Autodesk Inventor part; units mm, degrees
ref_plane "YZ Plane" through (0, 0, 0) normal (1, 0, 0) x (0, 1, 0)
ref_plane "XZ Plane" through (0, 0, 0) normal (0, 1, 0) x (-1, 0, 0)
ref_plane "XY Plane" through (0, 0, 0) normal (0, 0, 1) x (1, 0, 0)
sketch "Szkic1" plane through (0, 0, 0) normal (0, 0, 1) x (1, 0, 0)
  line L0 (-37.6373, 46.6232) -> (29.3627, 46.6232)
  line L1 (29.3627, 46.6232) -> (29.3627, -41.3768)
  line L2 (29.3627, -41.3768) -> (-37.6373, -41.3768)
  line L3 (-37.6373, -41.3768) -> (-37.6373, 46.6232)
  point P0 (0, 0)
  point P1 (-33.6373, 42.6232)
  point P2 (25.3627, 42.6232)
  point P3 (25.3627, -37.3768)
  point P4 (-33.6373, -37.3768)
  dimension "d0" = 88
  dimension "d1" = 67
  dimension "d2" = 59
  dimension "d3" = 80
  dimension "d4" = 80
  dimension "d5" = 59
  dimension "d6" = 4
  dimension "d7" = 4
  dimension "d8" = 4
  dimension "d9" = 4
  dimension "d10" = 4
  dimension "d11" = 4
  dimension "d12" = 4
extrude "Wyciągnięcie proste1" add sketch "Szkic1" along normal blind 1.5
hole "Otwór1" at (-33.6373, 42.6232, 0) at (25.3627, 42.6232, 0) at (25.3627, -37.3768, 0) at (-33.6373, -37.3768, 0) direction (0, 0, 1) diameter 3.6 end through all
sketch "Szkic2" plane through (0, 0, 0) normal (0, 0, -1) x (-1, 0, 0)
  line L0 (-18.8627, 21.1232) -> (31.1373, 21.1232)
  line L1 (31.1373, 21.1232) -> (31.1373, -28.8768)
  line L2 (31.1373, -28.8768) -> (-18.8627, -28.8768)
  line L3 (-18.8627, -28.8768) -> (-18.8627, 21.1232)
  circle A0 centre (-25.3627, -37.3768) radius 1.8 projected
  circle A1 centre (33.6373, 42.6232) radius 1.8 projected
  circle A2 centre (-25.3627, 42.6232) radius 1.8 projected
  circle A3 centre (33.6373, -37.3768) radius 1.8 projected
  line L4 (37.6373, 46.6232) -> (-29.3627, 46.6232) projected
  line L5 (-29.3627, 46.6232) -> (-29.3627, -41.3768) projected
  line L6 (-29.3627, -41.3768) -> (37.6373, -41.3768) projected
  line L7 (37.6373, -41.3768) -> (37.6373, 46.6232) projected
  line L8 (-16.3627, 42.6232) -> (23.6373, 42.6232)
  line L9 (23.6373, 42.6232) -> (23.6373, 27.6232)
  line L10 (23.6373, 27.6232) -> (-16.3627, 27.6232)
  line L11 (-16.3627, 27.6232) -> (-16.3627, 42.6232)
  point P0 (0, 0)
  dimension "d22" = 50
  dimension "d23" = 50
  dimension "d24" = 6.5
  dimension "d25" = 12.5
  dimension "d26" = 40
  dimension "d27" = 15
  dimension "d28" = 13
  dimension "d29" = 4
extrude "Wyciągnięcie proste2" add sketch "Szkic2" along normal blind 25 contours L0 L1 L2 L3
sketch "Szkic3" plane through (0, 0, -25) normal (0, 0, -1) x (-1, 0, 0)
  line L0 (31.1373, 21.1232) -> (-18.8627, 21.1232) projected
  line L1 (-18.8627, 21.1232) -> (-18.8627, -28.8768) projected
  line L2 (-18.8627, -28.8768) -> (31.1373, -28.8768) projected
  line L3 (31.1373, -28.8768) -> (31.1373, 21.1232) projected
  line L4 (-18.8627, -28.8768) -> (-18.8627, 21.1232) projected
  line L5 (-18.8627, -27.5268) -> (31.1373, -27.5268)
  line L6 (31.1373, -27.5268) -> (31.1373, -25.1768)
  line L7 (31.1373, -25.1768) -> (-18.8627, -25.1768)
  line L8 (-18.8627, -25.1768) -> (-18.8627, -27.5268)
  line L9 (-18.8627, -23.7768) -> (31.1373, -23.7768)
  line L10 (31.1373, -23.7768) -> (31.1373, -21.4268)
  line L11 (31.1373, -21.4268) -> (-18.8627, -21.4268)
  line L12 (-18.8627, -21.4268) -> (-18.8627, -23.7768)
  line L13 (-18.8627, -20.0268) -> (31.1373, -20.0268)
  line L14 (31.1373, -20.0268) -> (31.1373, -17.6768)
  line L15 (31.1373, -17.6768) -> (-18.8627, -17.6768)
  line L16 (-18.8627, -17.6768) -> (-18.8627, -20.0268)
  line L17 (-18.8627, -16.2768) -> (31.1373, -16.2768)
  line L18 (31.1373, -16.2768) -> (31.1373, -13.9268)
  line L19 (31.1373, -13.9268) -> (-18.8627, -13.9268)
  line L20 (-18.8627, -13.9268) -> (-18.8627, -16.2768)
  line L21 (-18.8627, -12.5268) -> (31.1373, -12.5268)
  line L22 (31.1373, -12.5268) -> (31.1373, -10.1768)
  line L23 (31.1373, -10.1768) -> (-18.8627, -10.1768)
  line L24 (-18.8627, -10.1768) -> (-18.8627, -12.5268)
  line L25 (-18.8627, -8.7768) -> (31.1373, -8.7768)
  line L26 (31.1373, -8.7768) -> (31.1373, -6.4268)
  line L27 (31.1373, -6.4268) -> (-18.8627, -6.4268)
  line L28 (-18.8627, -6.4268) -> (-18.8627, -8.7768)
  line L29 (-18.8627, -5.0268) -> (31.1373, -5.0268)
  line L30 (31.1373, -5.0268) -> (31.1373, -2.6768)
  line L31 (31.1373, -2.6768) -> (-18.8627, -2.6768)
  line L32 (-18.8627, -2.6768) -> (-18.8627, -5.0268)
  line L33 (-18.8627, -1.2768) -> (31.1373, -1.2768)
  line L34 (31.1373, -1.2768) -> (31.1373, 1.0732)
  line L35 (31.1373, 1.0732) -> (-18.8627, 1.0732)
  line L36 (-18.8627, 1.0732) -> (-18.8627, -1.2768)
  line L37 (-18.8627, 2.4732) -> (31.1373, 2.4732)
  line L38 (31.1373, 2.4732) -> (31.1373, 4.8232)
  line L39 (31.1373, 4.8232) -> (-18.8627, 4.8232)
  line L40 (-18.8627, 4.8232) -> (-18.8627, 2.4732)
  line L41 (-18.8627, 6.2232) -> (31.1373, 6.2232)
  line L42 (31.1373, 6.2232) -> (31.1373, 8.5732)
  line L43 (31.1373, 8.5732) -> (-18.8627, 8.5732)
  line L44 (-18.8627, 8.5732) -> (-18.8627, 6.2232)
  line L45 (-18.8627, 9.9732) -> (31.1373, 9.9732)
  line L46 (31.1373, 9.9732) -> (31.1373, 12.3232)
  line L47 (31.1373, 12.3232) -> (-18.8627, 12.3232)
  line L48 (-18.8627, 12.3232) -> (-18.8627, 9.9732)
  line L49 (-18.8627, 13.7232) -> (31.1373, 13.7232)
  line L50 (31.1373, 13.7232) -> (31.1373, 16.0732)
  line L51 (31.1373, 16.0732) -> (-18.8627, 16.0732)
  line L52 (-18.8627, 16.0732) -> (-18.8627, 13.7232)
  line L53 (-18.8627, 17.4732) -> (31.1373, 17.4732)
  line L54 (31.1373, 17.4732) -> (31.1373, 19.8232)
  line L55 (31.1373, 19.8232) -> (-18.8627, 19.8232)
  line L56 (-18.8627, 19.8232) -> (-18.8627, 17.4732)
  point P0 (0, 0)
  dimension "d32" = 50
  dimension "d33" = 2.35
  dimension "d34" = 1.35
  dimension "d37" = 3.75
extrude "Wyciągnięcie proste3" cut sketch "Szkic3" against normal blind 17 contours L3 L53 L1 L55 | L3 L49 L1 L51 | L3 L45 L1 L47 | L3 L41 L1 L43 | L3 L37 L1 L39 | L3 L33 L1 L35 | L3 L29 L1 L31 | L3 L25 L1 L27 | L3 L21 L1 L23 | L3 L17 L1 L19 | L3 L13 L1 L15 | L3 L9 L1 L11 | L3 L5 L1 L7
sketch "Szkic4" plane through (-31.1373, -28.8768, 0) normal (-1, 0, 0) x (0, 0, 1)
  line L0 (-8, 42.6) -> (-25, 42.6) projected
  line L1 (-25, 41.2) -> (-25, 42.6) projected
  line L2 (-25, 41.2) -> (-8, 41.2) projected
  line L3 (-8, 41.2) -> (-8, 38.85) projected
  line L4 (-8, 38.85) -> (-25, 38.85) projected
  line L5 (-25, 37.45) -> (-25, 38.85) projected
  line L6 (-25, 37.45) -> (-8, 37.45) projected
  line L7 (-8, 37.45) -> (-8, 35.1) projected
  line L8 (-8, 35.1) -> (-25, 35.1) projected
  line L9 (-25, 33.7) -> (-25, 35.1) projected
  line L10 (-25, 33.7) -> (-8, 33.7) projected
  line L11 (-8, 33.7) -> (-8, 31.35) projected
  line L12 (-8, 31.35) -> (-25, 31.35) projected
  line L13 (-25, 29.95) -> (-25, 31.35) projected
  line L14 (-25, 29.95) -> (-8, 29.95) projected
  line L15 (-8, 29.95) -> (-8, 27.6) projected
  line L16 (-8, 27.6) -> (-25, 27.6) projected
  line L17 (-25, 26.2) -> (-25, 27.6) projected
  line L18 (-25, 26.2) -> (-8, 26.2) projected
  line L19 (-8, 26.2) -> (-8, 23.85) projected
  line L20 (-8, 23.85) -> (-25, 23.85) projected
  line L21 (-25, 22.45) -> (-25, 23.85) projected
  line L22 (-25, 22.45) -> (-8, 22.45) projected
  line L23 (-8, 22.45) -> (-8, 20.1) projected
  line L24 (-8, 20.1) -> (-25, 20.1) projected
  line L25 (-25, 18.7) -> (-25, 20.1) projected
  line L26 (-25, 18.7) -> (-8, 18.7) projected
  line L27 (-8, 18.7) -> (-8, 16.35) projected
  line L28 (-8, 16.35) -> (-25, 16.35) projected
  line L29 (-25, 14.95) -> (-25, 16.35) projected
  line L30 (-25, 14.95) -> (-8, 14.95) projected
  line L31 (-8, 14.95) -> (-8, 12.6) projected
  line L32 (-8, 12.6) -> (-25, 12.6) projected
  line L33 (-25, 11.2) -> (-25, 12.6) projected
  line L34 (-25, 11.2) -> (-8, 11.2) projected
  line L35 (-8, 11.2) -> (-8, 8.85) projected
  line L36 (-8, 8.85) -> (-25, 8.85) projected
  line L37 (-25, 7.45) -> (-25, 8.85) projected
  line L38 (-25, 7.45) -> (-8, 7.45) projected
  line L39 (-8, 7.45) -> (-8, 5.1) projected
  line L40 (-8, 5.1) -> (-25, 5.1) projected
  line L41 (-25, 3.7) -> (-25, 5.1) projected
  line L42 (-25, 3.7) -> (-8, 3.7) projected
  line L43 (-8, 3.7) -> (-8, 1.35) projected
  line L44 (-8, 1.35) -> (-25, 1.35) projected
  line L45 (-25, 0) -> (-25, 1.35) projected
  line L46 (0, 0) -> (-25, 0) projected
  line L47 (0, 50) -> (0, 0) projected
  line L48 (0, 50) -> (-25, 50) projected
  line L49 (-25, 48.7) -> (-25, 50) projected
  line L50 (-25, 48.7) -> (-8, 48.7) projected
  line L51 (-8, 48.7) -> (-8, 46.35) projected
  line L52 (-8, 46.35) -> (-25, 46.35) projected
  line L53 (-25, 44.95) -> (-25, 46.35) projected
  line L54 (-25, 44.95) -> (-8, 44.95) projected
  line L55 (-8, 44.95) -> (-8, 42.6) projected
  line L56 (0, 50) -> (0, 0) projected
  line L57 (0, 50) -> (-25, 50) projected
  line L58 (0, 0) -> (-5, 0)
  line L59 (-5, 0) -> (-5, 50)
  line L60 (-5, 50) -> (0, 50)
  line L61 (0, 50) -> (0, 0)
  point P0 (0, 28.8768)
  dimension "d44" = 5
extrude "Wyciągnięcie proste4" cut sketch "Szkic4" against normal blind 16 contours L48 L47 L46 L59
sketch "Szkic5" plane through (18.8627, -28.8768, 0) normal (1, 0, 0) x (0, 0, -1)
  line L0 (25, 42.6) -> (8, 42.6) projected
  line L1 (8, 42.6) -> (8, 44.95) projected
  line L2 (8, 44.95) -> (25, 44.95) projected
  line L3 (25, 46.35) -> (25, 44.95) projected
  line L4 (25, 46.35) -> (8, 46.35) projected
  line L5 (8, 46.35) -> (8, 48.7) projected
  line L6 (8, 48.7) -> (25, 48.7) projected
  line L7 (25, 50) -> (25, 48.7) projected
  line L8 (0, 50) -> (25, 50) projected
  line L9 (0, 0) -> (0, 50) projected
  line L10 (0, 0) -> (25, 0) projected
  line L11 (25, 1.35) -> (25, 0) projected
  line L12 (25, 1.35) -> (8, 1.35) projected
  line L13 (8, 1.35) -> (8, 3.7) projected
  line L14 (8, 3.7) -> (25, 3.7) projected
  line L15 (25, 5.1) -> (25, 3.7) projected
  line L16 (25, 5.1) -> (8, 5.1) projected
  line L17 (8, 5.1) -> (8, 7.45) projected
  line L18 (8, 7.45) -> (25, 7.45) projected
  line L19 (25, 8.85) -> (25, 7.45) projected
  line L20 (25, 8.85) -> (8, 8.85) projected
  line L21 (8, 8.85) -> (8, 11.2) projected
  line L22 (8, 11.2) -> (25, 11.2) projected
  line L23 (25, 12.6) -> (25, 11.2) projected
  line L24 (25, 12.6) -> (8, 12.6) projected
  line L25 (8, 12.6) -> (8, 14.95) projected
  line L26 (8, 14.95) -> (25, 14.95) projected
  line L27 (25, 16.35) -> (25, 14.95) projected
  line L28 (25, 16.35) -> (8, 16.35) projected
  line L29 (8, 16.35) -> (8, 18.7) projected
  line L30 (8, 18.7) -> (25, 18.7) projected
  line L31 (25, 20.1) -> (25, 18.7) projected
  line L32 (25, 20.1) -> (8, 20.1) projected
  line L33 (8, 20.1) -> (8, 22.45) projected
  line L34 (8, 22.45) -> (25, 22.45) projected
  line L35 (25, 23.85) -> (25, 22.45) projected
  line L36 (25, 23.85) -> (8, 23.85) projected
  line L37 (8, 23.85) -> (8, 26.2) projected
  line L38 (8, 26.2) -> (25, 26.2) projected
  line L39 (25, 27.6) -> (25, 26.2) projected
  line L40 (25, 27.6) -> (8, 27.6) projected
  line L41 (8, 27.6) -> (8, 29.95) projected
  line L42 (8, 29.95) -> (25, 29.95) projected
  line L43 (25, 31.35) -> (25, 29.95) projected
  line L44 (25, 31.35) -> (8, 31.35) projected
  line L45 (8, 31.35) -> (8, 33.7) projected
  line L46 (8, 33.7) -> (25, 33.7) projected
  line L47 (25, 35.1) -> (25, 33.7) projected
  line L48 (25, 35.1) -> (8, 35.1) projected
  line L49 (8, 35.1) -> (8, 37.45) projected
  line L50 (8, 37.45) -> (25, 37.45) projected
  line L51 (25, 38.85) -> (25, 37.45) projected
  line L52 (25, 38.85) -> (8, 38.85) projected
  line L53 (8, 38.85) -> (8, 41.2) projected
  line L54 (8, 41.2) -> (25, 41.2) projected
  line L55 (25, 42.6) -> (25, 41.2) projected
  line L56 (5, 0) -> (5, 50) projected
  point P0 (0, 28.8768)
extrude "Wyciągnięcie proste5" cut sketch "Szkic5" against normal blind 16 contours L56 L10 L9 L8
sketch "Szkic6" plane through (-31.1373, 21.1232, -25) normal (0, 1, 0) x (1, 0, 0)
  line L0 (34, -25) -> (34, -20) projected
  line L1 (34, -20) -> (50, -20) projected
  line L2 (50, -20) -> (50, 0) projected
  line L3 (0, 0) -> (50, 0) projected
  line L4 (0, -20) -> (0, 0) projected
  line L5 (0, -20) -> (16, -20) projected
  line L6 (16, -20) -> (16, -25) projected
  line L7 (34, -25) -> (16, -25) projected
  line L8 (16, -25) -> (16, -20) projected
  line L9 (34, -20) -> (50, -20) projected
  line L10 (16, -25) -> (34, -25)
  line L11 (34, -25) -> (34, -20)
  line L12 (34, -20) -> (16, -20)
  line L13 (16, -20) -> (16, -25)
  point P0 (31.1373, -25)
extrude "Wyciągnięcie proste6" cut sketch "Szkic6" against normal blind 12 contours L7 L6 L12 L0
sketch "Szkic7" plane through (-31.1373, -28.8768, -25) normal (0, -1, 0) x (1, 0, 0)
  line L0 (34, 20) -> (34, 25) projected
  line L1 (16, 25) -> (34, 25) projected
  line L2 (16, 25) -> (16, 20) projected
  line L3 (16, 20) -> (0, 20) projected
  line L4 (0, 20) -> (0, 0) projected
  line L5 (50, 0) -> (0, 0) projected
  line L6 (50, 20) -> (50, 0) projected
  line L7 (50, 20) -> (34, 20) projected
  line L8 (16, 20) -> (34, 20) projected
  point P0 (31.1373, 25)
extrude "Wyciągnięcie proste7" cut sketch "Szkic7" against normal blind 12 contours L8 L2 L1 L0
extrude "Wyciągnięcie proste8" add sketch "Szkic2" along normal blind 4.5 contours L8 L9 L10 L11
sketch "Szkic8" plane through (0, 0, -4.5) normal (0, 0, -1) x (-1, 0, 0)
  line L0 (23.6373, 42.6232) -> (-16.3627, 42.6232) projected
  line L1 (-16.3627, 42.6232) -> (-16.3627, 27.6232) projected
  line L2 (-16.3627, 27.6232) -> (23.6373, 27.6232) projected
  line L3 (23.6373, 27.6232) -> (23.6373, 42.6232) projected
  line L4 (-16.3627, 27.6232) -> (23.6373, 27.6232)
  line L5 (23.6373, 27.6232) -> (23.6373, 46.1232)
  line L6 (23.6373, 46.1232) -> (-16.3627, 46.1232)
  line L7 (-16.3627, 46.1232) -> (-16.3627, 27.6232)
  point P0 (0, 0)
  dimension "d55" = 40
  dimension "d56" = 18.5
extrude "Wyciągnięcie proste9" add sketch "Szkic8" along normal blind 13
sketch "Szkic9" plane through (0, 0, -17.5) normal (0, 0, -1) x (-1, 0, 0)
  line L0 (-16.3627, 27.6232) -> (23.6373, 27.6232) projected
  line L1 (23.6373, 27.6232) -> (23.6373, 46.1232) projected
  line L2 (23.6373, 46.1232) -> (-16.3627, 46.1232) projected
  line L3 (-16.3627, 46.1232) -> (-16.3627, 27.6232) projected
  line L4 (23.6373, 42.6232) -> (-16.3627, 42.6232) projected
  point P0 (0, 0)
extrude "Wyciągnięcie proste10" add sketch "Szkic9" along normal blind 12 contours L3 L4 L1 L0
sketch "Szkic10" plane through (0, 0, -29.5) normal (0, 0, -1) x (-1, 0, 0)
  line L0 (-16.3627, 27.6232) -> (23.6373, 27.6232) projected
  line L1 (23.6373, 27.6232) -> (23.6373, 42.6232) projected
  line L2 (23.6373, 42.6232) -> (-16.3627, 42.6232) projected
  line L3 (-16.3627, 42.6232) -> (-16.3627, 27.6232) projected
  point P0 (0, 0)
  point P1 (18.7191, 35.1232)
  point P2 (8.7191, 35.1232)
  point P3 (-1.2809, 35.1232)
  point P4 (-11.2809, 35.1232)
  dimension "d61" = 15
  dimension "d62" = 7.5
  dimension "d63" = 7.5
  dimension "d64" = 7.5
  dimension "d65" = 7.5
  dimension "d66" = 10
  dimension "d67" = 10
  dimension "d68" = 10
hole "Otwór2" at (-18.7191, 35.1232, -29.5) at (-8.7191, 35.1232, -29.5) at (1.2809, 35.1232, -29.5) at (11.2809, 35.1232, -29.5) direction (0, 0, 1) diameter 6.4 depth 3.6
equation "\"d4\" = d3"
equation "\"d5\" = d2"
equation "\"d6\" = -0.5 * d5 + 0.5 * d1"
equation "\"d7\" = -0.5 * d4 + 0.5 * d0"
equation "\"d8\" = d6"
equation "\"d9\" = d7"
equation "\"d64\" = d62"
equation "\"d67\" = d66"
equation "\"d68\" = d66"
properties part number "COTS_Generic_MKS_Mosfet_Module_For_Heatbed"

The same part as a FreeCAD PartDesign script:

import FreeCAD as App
import Part
import Sketcher

doc = App.newDocument("Part")
body = doc.addObject("PartDesign::Body", "Body")

sketch1 = body.newObject("Sketcher::SketchObject", "Sketch")
sketch1.AttachmentSupport = (doc.getObject("XY_Plane"), [""])
sketch1.MapMode = "FlatFace"
sketch1.addGeometry(Part.LineSegment(App.Vector(29, 47, 0), App.Vector(-38, 47, 0)), False)
sketch1.addGeometry(Part.LineSegment(App.Vector(-38, 47, 0), App.Vector(-38, -41, 0)), False)
sketch1.addGeometry(Part.LineSegment(App.Vector(-38, -41, 0), App.Vector(29, -41, 0)), False)
sketch1.addGeometry(Part.LineSegment(App.Vector(29, -41, 0), App.Vector(29, 47, 0)), False)
sketch1.addConstraint(Sketcher.Constraint("Coincident", 0, 2, 1, 1))
sketch1.addConstraint(Sketcher.Constraint("Coincident", 1, 2, 2, 1))
sketch1.addConstraint(Sketcher.Constraint("Coincident", 2, 2, 3, 1))
sketch1.addConstraint(Sketcher.Constraint("Coincident", 3, 2, 0, 1))
sketch1.addConstraint(Sketcher.Constraint("Horizontal", 0))
sketch1.addConstraint(Sketcher.Constraint("Vertical", 1))
sketch1.addConstraint(Sketcher.Constraint("Horizontal", 2))
sketch1.addConstraint(Sketcher.Constraint("Vertical", 3))
sketch1.addConstraint(Sketcher.Constraint("DistanceX", 0, 2, 0, 1, 67.0))
sketch1.addConstraint(Sketcher.Constraint("DistanceY", 1, 2, 1, 1, 88.0))
sketch1.addConstraint(Sketcher.Constraint("DistanceX", 0, 2, -1, 1, 37.6373))
sketch1.addConstraint(Sketcher.Constraint("DistanceY", -1, 1, 0, 2, 46.6232))
pad1 = body.newObject("PartDesign::Pad", "Pad")
pad1.Profile = sketch1
pad1.Length = 1.5

sketch2 = body.newObject("Sketcher::SketchObject", "Sketch001")
sketch2.AttachmentSupport = (doc.getObject("XY_Plane"), [""])
sketch2.MapMode = "FlatFace"
sketch2.addGeometry(Part.Circle(App.Vector(-33.6, 42.6, 0), App.Vector(0, 0, 1), 1.8), False)
sketch2.addGeometry(Part.Circle(App.Vector(25.4, 42.6, 0), App.Vector(0, 0, 1), 1.8), False)
sketch2.addGeometry(Part.Circle(App.Vector(25.4, -37.4, 0), App.Vector(0, 0, 1), 1.8), False)
sketch2.addGeometry(Part.Circle(App.Vector(-33.6, -37.4, 0), App.Vector(0, 0, 1), 1.8), False)
sketch2.addConstraint(Sketcher.Constraint("Equal", 0, 1))
sketch2.addConstraint(Sketcher.Constraint("Equal", 1, 2))
sketch2.addConstraint(Sketcher.Constraint("Equal", 2, 3))
sketch2.addConstraint(Sketcher.Constraint("Horizontal", 0, 3, 1, 3))
sketch2.addConstraint(Sketcher.Constraint("Horizontal", 2, 3, 3, 3))
sketch2.addConstraint(Sketcher.Constraint("Vertical", 1, 3, 2, 3))
sketch2.addConstraint(Sketcher.Constraint("Vertical", 0, 3, 3, 3))
sketch2.addConstraint(Sketcher.Constraint("Diameter", 0, 3.6))
sketch2.addConstraint(Sketcher.Constraint("DistanceX", 0, 3, 1, 3, 59.0))
sketch2.addConstraint(Sketcher.Constraint("DistanceY", 2, 3, 1, 3, 80.0))
sketch2.addConstraint(Sketcher.Constraint("DistanceX", 0, 3, -1, 1, 33.6373))
sketch2.addConstraint(Sketcher.Constraint("DistanceY", -1, 1, 0, 3, 42.6232))
doc.recompute()
hole = body.newObject("PartDesign::Hole", "Hole")
hole.Profile = sketch2
hole.ThreadType = "None"
hole.Diameter = 3.6
hole.DepthType = "ThroughAll"
hole.Reversed = True

sketch3 = body.newObject("Sketcher::SketchObject", "Sketch002")
sketch3.AttachmentSupport = (doc.getObject("XY_Plane"), [""])
sketch3.MapMode = "FlatFace"
sketch3.addGeometry(Part.LineSegment(App.Vector(-31, 21, 0), App.Vector(19, 21, 0)), False)
sketch3.addGeometry(Part.LineSegment(App.Vector(19, 21, 0), App.Vector(19, -29, 0)), False)
sketch3.addGeometry(Part.LineSegment(App.Vector(19, -29, 0), App.Vector(-31, -29, 0)), False)
sketch3.addGeometry(Part.LineSegment(App.Vector(-31, -29, 0), App.Vector(-31, 21, 0)), False)
sketch3.addConstraint(Sketcher.Constraint("Coincident", 0, 2, 1, 1))
sketch3.addConstraint(Sketcher.Constraint("Coincident", 1, 2, 2, 1))
sketch3.addConstraint(Sketcher.Constraint("Coincident", 2, 2, 3, 1))
sketch3.addConstraint(Sketcher.Constraint("Coincident", 3, 2, 0, 1))
sketch3.addConstraint(Sketcher.Constraint("Horizontal", 0))
sketch3.addConstraint(Sketcher.Constraint("Vertical", 1))
sketch3.addConstraint(Sketcher.Constraint("Horizontal", 2))
sketch3.addConstraint(Sketcher.Constraint("Vertical", 3))
sketch3.addConstraint(Sketcher.Constraint("Equal", 2, 1))
sketch3.addConstraint(Sketcher.Constraint("DistanceX", 0, 1, 0, 2, 50.0))
sketch3.addConstraint(Sketcher.Constraint("DistanceX", -1, 1, 0, 2, 18.8627))
sketch3.addConstraint(Sketcher.Constraint("DistanceY", -1, 1, 0, 2, 21.1232))
pad2 = body.newObject("PartDesign::Pad", "Pad001")
pad2.Profile = sketch3
pad2.Length = 25
pad2.Reversed = True

sketch4 = body.newObject("Sketcher::SketchObject", "Sketch003")
sketch4.AttachmentSupport = (doc.getObject("XY_Plane"), [""])
sketch4.MapMode = "FlatFace"
sketch4.AttachmentOffset = App.Placement(App.Vector(0, 0, -25), App.Rotation())
sketch4.addGeometry(Part.LineSegment(App.Vector(-31.1, 17.5, 0), App.Vector(-31.1, 19.8, 0)), False)
sketch4.addGeometry(Part.LineSegment(App.Vector(-31.1, 19.8, 0), App.Vector(18.9, 19.8, 0)), False)
sketch4.addGeometry(Part.LineSegment(App.Vector(18.9, 19.8, 0), App.Vector(18.9, 17.5, 0)), False)
sketch4.addGeometry(Part.LineSegment(App.Vector(18.9, 17.5, 0), App.Vector(-31.1, 17.5, 0)), False)
sketch4.addGeometry(Part.LineSegment(App.Vector(-31.1, 13.7, 0), App.Vector(-31.1, 16.1, 0)), False)
sketch4.addGeometry(Part.LineSegment(App.Vector(-31.1, 16.1, 0), App.Vector(18.9, 16.1, 0)), False)
sketch4.addGeometry(Part.LineSegment(App.Vector(18.9, 16.1, 0), App.Vector(18.9, 13.7, 0)), False)
sketch4.addGeometry(Part.LineSegment(App.Vector(18.9, 13.7, 0), App.Vector(-31.1, 13.7, 0)), False)
sketch4.addGeometry(Part.LineSegment(App.Vector(-31.1, 10, 0), App.Vector(-31.1, 12.3, 0)), False)
sketch4.addGeometry(Part.LineSegment(App.Vector(-31.1, 12.3, 0), App.Vector(18.9, 12.3, 0)), False)
sketch4.addGeometry(Part.LineSegment(App.Vector(18.9, 12.3, 0), App.Vector(18.9, 10, 0)), False)
sketch4.addGeometry(Part.LineSegment(App.Vector(18.9, 10, 0), App.Vector(-31.1, 10, 0)), False)
sketch4.addGeometry(Part.LineSegment(App.Vector(-31.1, 6.2, 0), App.Vector(-31.1, 8.6, 0)), False)
sketch4.addGeometry(Part.LineSegment(App.Vector(-31.1, 8.6, 0), App.Vector(18.9, 8.6, 0)), False)
sketch4.addGeometry(Part.LineSegment(App.Vector(18.9, 8.6, 0), App.Vector(18.9, 6.2, 0)), False)
sketch4.addGeometry(Part.LineSegment(App.Vector(18.9, 6.2, 0), App.Vector(-31.1, 6.2, 0)), False)
sketch4.addGeometry(Part.LineSegment(App.Vector(-31.1, 2.5, 0), App.Vector(-31.1, 4.8, 0)), False)
sketch4.addGeometry(Part.LineSegment(App.Vector(-31.1, 4.8, 0), App.Vector(18.9, 4.8, 0)), False)
sketch4.addGeometry(Part.LineSegment(App.Vector(18.9, 4.8, 0), App.Vector(18.9, 2.5, 0)), False)
sketch4.addGeometry(Part.LineSegment(App.Vector(18.9, 2.5, 0), App.Vector(-31.1, 2.5, 0)), False)
sketch4.addGeometry(Part.LineSegment(App.Vector(-31.1, -1.3, 0), App.Vector(-31.1, 1.1, 0)), False)
sketch4.addGeometry(Part.LineSegment(App.Vector(-31.1, 1.1, 0), App.Vector(18.9, 1.1, 0)), False)
sketch4.addGeometry(Part.LineSegment(App.Vector(18.9, 1.1, 0), App.Vector(18.9, -1.3, 0)), False)
sketch4.addGeometry(Part.LineSegment(App.Vector(18.9, -1.3, 0), App.Vector(-31.1, -1.3, 0)), False)
sketch4.addGeometry(Part.LineSegment(App.Vector(-31.1, -5, 0), App.Vector(-31.1, -2.7, 0)), False)
sketch4.addGeometry(Part.LineSegment(App.Vector(-31.1, -2.7, 0), App.Vector(18.9, -2.7, 0)), False)
sketch4.addGeometry(Part.LineSegment(App.Vector(18.9, -2.7, 0), App.Vector(18.9, -5, 0)), False)
sketch4.addGeometry(Part.LineSegment(App.Vector(18.9, -5, 0), App.Vector(-31.1, -5, 0)), False)
sketch4.addGeometry(Part.LineSegment(App.Vector(-31.1, -8.8, 0), App.Vector(-31.1, -6.4, 0)), False)
sketch4.addGeometry(Part.LineSegment(App.Vector(-31.1, -6.4, 0), App.Vector(18.9, -6.4, 0)), False)
sketch4.addGeometry(Part.LineSegment(App.Vector(18.9, -6.4, 0), App.Vector(18.9, -8.8, 0)), False)
sketch4.addGeometry(Part.LineSegment(App.Vector(18.9, -8.8, 0), App.Vector(-31.1, -8.8, 0)), False)
sketch4.addGeometry(Part.LineSegment(App.Vector(-31.1, -12.5, 0), App.Vector(-31.1, -10.2, 0)), False)
sketch4.addGeometry(Part.LineSegment(App.Vector(-31.1, -10.2, 0), App.Vector(18.9, -10.2, 0)), False)
sketch4.addGeometry(Part.LineSegment(App.Vector(18.9, -10.2, 0), App.Vector(18.9, -12.5, 0)), False)
sketch4.addGeometry(Part.LineSegment(App.Vector(18.9, -12.5, 0), App.Vector(-31.1, -12.5, 0)), False)
sketch4.addGeometry(Part.LineSegment(App.Vector(-31.1, -16.3, 0), App.Vector(-31.1, -13.9, 0)), False)
sketch4.addGeometry(Part.LineSegment(App.Vector(-31.1, -13.9, 0), App.Vector(18.9, -13.9, 0)), False)
sketch4.addGeometry(Part.LineSegment(App.Vector(18.9, -13.9, 0), App.Vector(18.9, -16.3, 0)), False)
sketch4.addGeometry(Part.LineSegment(App.Vector(18.9, -16.3, 0), App.Vector(-31.1, -16.3, 0)), False)
sketch4.addGeometry(Part.LineSegment(App.Vector(-31.1, -20, 0), App.Vector(-31.1, -17.7, 0)), False)
sketch4.addGeometry(Part.LineSegment(App.Vector(-31.1, -17.7, 0), App.Vector(18.9, -17.7, 0)), False)
sketch4.addGeometry(Part.LineSegment(App.Vector(18.9, -17.7, 0), App.Vector(18.9, -20, 0)), False)
sketch4.addGeometry(Part.LineSegment(App.Vector(18.9, -20, 0), App.Vector(-31.1, -20, 0)), False)
sketch4.addGeometry(Part.LineSegment(App.Vector(-31.1, -23.8, 0), App.Vector(-31.1, -21.4, 0)), False)
sketch4.addGeometry(Part.LineSegment(App.Vector(-31.1, -21.4, 0), App.Vector(18.9, -21.4, 0)), False)
sketch4.addGeometry(Part.LineSegment(App.Vector(18.9, -21.4, 0), App.Vector(18.9, -23.8, 0)), False)
sketch4.addGeometry(Part.LineSegment(App.Vector(18.9, -23.8, 0), App.Vector(-31.1, -23.8, 0)), False)
sketch4.addGeometry(Part.LineSegment(App.Vector(-31.1, -27.5, 0), App.Vector(-31.1, -25.2, 0)), False)
sketch4.addGeometry(Part.LineSegment(App.Vector(-31.1, -25.2, 0), App.Vector(18.9, -25.2, 0)), False)
sketch4.addGeometry(Part.LineSegment(App.Vector(18.9, -25.2, 0), App.Vector(18.9, -27.5, 0)), False)
sketch4.addGeometry(Part.LineSegment(App.Vector(18.9, -27.5, 0), App.Vector(-31.1, -27.5, 0)), False)
sketch4.addConstraint(Sketcher.Constraint("Coincident", 0, 2, 1, 1))
sketch4.addConstraint(Sketcher.Constraint("Coincident", 1, 2, 2, 1))
sketch4.addConstraint(Sketcher.Constraint("Coincident", 2, 2, 3, 1))
sketch4.addConstraint(Sketcher.Constraint("Coincident", 3, 2, 0, 1))
sketch4.addConstraint(Sketcher.Constraint("Coincident", 4, 2, 5, 1))
sketch4.addConstraint(Sketcher.Constraint("Coincident", 5, 2, 6, 1))
sketch4.addConstraint(Sketcher.Constraint("Coincident", 6, 2, 7, 1))
sketch4.addConstraint(Sketcher.Constraint("Coincident", 7, 2, 4, 1))
sketch4.addConstraint(Sketcher.Constraint("Coincident", 8, 2, 9, 1))
sketch4.addConstraint(Sketcher.Constraint("Coincident", 9, 2, 10, 1))
sketch4.addConstraint(Sketcher.Constraint("Coincident", 10, 2, 11, 1))
sketch4.addConstraint(Sketcher.Constraint("Coincident", 11, 2, 8, 1))
sketch4.addConstraint(Sketcher.Constraint("Coincident", 12, 2, 13, 1))
sketch4.addConstraint(Sketcher.Constraint("Coincident", 13, 2, 14, 1))
sketch4.addConstraint(Sketcher.Constraint("Coincident", 14, 2, 15, 1))
sketch4.addConstraint(Sketcher.Constraint("Coincident", 15, 2, 12, 1))
sketch4.addConstraint(Sketcher.Constraint("Coincident", 16, 2, 17, 1))
sketch4.addConstraint(Sketcher.Constraint("Coincident", 17, 2, 18, 1))
sketch4.addConstraint(Sketcher.Constraint("Coincident", 18, 2, 19, 1))
sketch4.addConstraint(Sketcher.Constraint("Coincident", 19, 2, 16, 1))
sketch4.addConstraint(Sketcher.Constraint("Coincident", 20, 2, 21, 1))
sketch4.addConstraint(Sketcher.Constraint("Coincident", 21, 2, 22, 1))
sketch4.addConstraint(Sketcher.Constraint("Coincident", 22, 2, 23, 1))
sketch4.addConstraint(Sketcher.Constraint("Coincident", 23, 2, 20, 1))
sketch4.addConstraint(Sketcher.Constraint("Coincident", 24, 2, 25, 1))
sketch4.addConstraint(Sketcher.Constraint("Coincident", 25, 2, 26, 1))
sketch4.addConstraint(Sketcher.Constraint("Coincident", 26, 2, 27, 1))
sketch4.addConstraint(Sketcher.Constraint("Coincident", 27, 2, 24, 1))
sketch4.addConstraint(Sketcher.Constraint("Coincident", 28, 2, 29, 1))
sketch4.addConstraint(Sketcher.Constraint("Coincident", 29, 2, 30, 1))
sketch4.addConstraint(Sketcher.Constraint("Coincident", 30, 2, 31, 1))
sketch4.addConstraint(Sketcher.Constraint("Coincident", 31, 2, 28, 1))
sketch4.addConstraint(Sketcher.Constraint("Coincident", 32, 2, 33, 1))
sketch4.addConstraint(Sketcher.Constraint("Coincident", 33, 2, 34, 1))
sketch4.addConstraint(Sketcher.Constraint("Coincident", 34, 2, 35, 1))
sketch4.addConstraint(Sketcher.Constraint("Coincident", 35, 2, 32, 1))
sketch4.addConstraint(Sketcher.Constraint("Coincident", 36, 2, 37, 1))
sketch4.addConstraint(Sketcher.Constraint("Coincident", 37, 2, 38, 1))
sketch4.addConstraint(Sketcher.Constraint("Coincident", 38, 2, 39, 1))
sketch4.addConstraint(Sketcher.Constraint("Coincident", 39, 2, 36, 1))
sketch4.addConstraint(Sketcher.Constraint("Coincident", 40, 2, 41, 1))
sketch4.addConstraint(Sketcher.Constraint("Coincident", 41, 2, 42, 1))
sketch4.addConstraint(Sketcher.Constraint("Coincident", 42, 2, 43, 1))
sketch4.addConstraint(Sketcher.Constraint("Coincident", 43, 2, 40, 1))
sketch4.addConstraint(Sketcher.Constraint("Coincident", 44, 2, 45, 1))
sketch4.addConstraint(Sketcher.Constraint("Coincident", 45, 2, 46, 1))
sketch4.addConstraint(Sketcher.Constraint("Coincident", 46, 2, 47, 1))
sketch4.addConstraint(Sketcher.Constraint("Coincident", 47, 2, 44, 1))
sketch4.addConstraint(Sketcher.Constraint("Coincident", 48, 2, 49, 1))
sketch4.addConstraint(Sketcher.Constraint("Coincident", 49, 2, 50, 1))
sketch4.addConstraint(Sketcher.Constraint("Coincident", 50, 2, 51, 1))
sketch4.addConstraint(Sketcher.Constraint("Coincident", 51, 2, 48, 1))
sketch4.addConstraint(Sketcher.Constraint("Vertical", 0))
sketch4.addConstraint(Sketcher.Constraint("Horizontal", 1))
sketch4.addConstraint(Sketcher.Constraint("Vertical", 2))
sketch4.addConstraint(Sketcher.Constraint("Horizontal", 3))
sketch4.addConstraint(Sketcher.Constraint("Vertical", 4))
sketch4.addConstraint(Sketcher.Constraint("Horizontal", 5))
sketch4.addConstraint(Sketcher.Constraint("Vertical", 6))
sketch4.addConstraint(Sketcher.Constraint("Horizontal", 7))
sketch4.addConstraint(Sketcher.Constraint("Vertical", 8))
sketch4.addConstraint(Sketcher.Constraint("Horizontal", 9))
sketch4.addConstraint(Sketcher.Constraint("Vertical", 10))
sketch4.addConstraint(Sketcher.Constraint("Horizontal", 11))
sketch4.addConstraint(Sketcher.Constraint("Vertical", 12))
sketch4.addConstraint(Sketcher.Constraint("Horizontal", 13))
sketch4.addConstraint(Sketcher.Constraint("Vertical", 14))
sketch4.addConstraint(Sketcher.Constraint("Horizontal", 15))
sketch4.addConstraint(Sketcher.Constraint("Vertical", 16))
sketch4.addConstraint(Sketcher.Constraint("Horizontal", 17))
sketch4.addConstraint(Sketcher.Constraint("Vertical", 18))
sketch4.addConstraint(Sketcher.Constraint("Horizontal", 19))
sketch4.addConstraint(Sketcher.Constraint("Vertical", 20))
sketch4.addConstraint(Sketcher.Constraint("Horizontal", 21))
sketch4.addConstraint(Sketcher.Constraint("Vertical", 22))
sketch4.addConstraint(Sketcher.Constraint("Horizontal", 23))
sketch4.addConstraint(Sketcher.Constraint("Vertical", 24))
sketch4.addConstraint(Sketcher.Constraint("Horizontal", 25))
sketch4.addConstraint(Sketcher.Constraint("Vertical", 26))
sketch4.addConstraint(Sketcher.Constraint("Horizontal", 27))
sketch4.addConstraint(Sketcher.Constraint("Vertical", 28))
sketch4.addConstraint(Sketcher.Constraint("Horizontal", 29))
sketch4.addConstraint(Sketcher.Constraint("Vertical", 30))
sketch4.addConstraint(Sketcher.Constraint("Horizontal", 31))
sketch4.addConstraint(Sketcher.Constraint("Vertical", 32))
sketch4.addConstraint(Sketcher.Constraint("Horizontal", 33))
sketch4.addConstraint(Sketcher.Constraint("Vertical", 34))
sketch4.addConstraint(Sketcher.Constraint("Horizontal", 35))
sketch4.addConstraint(Sketcher.Constraint("Vertical", 36))
sketch4.addConstraint(Sketcher.Constraint("Horizontal", 37))
sketch4.addConstraint(Sketcher.Constraint("Vertical", 38))
sketch4.addConstraint(Sketcher.Constraint("Horizontal", 39))
sketch4.addConstraint(Sketcher.Constraint("Vertical", 40))
sketch4.addConstraint(Sketcher.Constraint("Horizontal", 41))
sketch4.addConstraint(Sketcher.Constraint("Vertical", 42))
sketch4.addConstraint(Sketcher.Constraint("Horizontal", 43))
sketch4.addConstraint(Sketcher.Constraint("Vertical", 44))
sketch4.addConstraint(Sketcher.Constraint("Horizontal", 45))
sketch4.addConstraint(Sketcher.Constraint("Vertical", 46))
sketch4.addConstraint(Sketcher.Constraint("Horizontal", 47))
sketch4.addConstraint(Sketcher.Constraint("Vertical", 48))
sketch4.addConstraint(Sketcher.Constraint("Horizontal", 49))
sketch4.addConstraint(Sketcher.Constraint("Vertical", 50))
sketch4.addConstraint(Sketcher.Constraint("Horizontal", 51))
sketch4.addConstraint(Sketcher.Constraint("Vertical", 3, 2, 4, 2))
sketch4.addConstraint(Sketcher.Constraint("Vertical", 2, 2, 5, 2))
sketch4.addConstraint(Sketcher.Constraint("Vertical", 7, 2, 8, 2))
sketch4.addConstraint(Sketcher.Constraint("Vertical", 6, 2, 9, 2))
sketch4.addConstraint(Sketcher.Constraint("Vertical", 11, 2, 12, 2))
sketch4.addConstraint(Sketcher.Constraint("Vertical", 10, 2, 13, 2))
sketch4.addConstraint(Sketcher.Constraint("Vertical", 15, 2, 16, 2))
sketch4.addConstraint(Sketcher.Constraint("Vertical", 14, 2, 17, 2))
sketch4.addConstraint(Sketcher.Constraint("Vertical", 19, 2, 20, 2))
sketch4.addConstraint(Sketcher.Constraint("Vertical", 18, 2, 21, 2))
sketch4.addConstraint(Sketcher.Constraint("Vertical", 23, 2, 24, 2))
sketch4.addConstraint(Sketcher.Constraint("Vertical", 22, 2, 25, 2))
sketch4.addConstraint(Sketcher.Constraint("Vertical", 27, 2, 28, 2))
sketch4.addConstraint(Sketcher.Constraint("Vertical", 26, 2, 29, 2))
sketch4.addConstraint(Sketcher.Constraint("Vertical", 31, 2, 32, 2))
sketch4.addConstraint(Sketcher.Constraint("Vertical", 30, 2, 33, 2))
sketch4.addConstraint(Sketcher.Constraint("Vertical", 35, 2, 36, 2))
sketch4.addConstraint(Sketcher.Constraint("Vertical", 34, 2, 37, 2))
sketch4.addConstraint(Sketcher.Constraint("Vertical", 39, 2, 40, 2))
sketch4.addConstraint(Sketcher.Constraint("Vertical", 38, 2, 41, 2))
sketch4.addConstraint(Sketcher.Constraint("Vertical", 43, 2, 44, 2))
sketch4.addConstraint(Sketcher.Constraint("Vertical", 42, 2, 45, 2))
sketch4.addConstraint(Sketcher.Constraint("Vertical", 47, 2, 48, 2))
sketch4.addConstraint(Sketcher.Constraint("Vertical", 46, 2, 49, 2))
sketch4.addConstraint(Sketcher.Constraint("Equal", 2, 4))
sketch4.addConstraint(Sketcher.Constraint("Equal", 6, 8))
sketch4.addConstraint(Sketcher.Constraint("Equal", 10, 12))
sketch4.addConstraint(Sketcher.Constraint("Equal", 14, 16))
sketch4.addConstraint(Sketcher.Constraint("Equal", 18, 20))
sketch4.addConstraint(Sketcher.Constraint("Equal", 22, 24))
sketch4.addConstraint(Sketcher.Constraint("Equal", 26, 28))
sketch4.addConstraint(Sketcher.Constraint("Equal", 30, 32))
sketch4.addConstraint(Sketcher.Constraint("Equal", 34, 36))
sketch4.addConstraint(Sketcher.Constraint("Equal", 38, 40))
sketch4.addConstraint(Sketcher.Constraint("Equal", 42, 44))
sketch4.addConstraint(Sketcher.Constraint("Equal", 46, 48))
sketch4.addConstraint(Sketcher.Constraint("DistanceX", 1, 1, 1, 2, 50.0))
sketch4.addConstraint(Sketcher.Constraint("DistanceY", 0, 1, 0, 2, 2.35))
sketch4.addConstraint(Sketcher.Constraint("DistanceY", 4, 2, 0, 2, 3.75))
sketch4.addConstraint(Sketcher.Constraint("DistanceY", 8, 2, 4, 2, 3.75))
sketch4.addConstraint(Sketcher.Constraint("DistanceY", 12, 2, 8, 2, 3.75))
sketch4.addConstraint(Sketcher.Constraint("DistanceY", 16, 2, 12, 2, 3.75))
sketch4.addConstraint(Sketcher.Constraint("DistanceY", 20, 2, 16, 2, 3.75))
sketch4.addConstraint(Sketcher.Constraint("DistanceY", 24, 2, 20, 2, 3.75))
sketch4.addConstraint(Sketcher.Constraint("DistanceY", 28, 2, 24, 2, 3.75))
sketch4.addConstraint(Sketcher.Constraint("DistanceY", 32, 2, 28, 2, 3.75))
sketch4.addConstraint(Sketcher.Constraint("DistanceY", 36, 2, 32, 2, 3.75))
sketch4.addConstraint(Sketcher.Constraint("DistanceY", 40, 2, 36, 2, 3.75))
sketch4.addConstraint(Sketcher.Constraint("DistanceY", 44, 2, 40, 2, 3.75))
sketch4.addConstraint(Sketcher.Constraint("DistanceY", 48, 2, 44, 2, 3.75))
sketch4.addConstraint(Sketcher.Constraint("DistanceX", 0, 2, -1, 1, 31.1373))
sketch4.addConstraint(Sketcher.Constraint("DistanceY", -1, 1, 0, 2, 19.8232))
pocket1 = body.newObject("PartDesign::Pocket", "Pocket")
pocket1.Profile = sketch4
pocket1.Length = 17
pocket1.Reversed = True

sketch5 = body.newObject("Sketcher::SketchObject", "Sketch004")
sketch5.AttachmentSupport = (doc.getObject("YZ_Plane"), [""])
sketch5.MapMode = "FlatFace"
sketch5.AttachmentOffset = App.Placement(App.Vector(0, 0, -31.1373), App.Rotation())
sketch5.addGeometry(Part.LineSegment(App.Vector(21, 0, 0), App.Vector(21, -5, 0)), False)
sketch5.addGeometry(Part.LineSegment(App.Vector(21, -5, 0), App.Vector(-29, -5, 0)), False)
sketch5.addGeometry(Part.LineSegment(App.Vector(-29, -5, 0), App.Vector(-29, 0, 0)), False)
sketch5.addGeometry(Part.LineSegment(App.Vector(-29, 0, 0), App.Vector(21, 0, 0)), False)
sketch5.addConstraint(Sketcher.Constraint("Coincident", 0, 2, 1, 1))
sketch5.addConstraint(Sketcher.Constraint("Coincident", 1, 2, 2, 1))
sketch5.addConstraint(Sketcher.Constraint("Coincident", 2, 2, 3, 1))
sketch5.addConstraint(Sketcher.Constraint("Coincident", 3, 2, 0, 1))
sketch5.addConstraint(Sketcher.Constraint("Vertical", 0))
sketch5.addConstraint(Sketcher.Constraint("Horizontal", 1))
sketch5.addConstraint(Sketcher.Constraint("Vertical", 2))
sketch5.addConstraint(Sketcher.Constraint("Horizontal", 3))
sketch5.addConstraint(Sketcher.Constraint("PointOnObject", 2, 2, -1))
sketch5.addConstraint(Sketcher.Constraint("DistanceY", 0, 2, 0, 1, 5.0))
sketch5.addConstraint(Sketcher.Constraint("DistanceX", 1, 2, 1, 1, 50.0))
sketch5.addConstraint(Sketcher.Constraint("DistanceX", -1, 1, 0, 2, 21.1232))
pocket2 = body.newObject("PartDesign::Pocket", "Pocket001")
pocket2.Profile = sketch5
pocket2.Length = 16
pocket2.Reversed = True

sketch6 = body.newObject("Sketcher::SketchObject", "Sketch005")
sketch6.AttachmentSupport = (doc.getObject("YZ_Plane"), [""])
sketch6.MapMode = "FlatFace"
sketch6.AttachmentOffset = App.Placement(App.Vector(0, 0, 18.8627), App.Rotation())
sketch6.addGeometry(Part.LineSegment(App.Vector(-29, -5, 0), App.Vector(21, -5, 0)), False)
sketch6.addGeometry(Part.LineSegment(App.Vector(21, -5, 0), App.Vector(21, 0, 0)), False)
sketch6.addGeometry(Part.LineSegment(App.Vector(21, 0, 0), App.Vector(-29, 0, 0)), False)
sketch6.addGeometry(Part.LineSegment(App.Vector(-29, 0, 0), App.Vector(-29, -5, 0)), False)
sketch6.addConstraint(Sketcher.Constraint("Coincident", 0, 2, 1, 1))
sketch6.addConstraint(Sketcher.Constraint("Coincident", 1, 2, 2, 1))
sketch6.addConstraint(Sketcher.Constraint("Coincident", 2, 2, 3, 1))
sketch6.addConstraint(Sketcher.Constraint("Coincident", 3, 2, 0, 1))
sketch6.addConstraint(Sketcher.Constraint("Horizontal", 0))
sketch6.addConstraint(Sketcher.Constraint("Vertical", 1))
sketch6.addConstraint(Sketcher.Constraint("Horizontal", 2))
sketch6.addConstraint(Sketcher.Constraint("Vertical", 3))
sketch6.addConstraint(Sketcher.Constraint("PointOnObject", 1, 2, -1))
sketch6.addConstraint(Sketcher.Constraint("DistanceX", 0, 1, 0, 2, 50.0))
sketch6.addConstraint(Sketcher.Constraint("DistanceY", 1, 1, 1, 2, 5.0))
sketch6.addConstraint(Sketcher.Constraint("DistanceX", -1, 1, 0, 2, 21.1232))
pocket3 = body.newObject("PartDesign::Pocket", "Pocket002")
pocket3.Profile = sketch6
pocket3.Length = 16

sketch7 = body.newObject("Sketcher::SketchObject", "Sketch006")
sketch7.AttachmentSupport = (doc.getObject("XZ_Plane"), [""])
sketch7.MapMode = "FlatFace"
sketch7.AttachmentOffset = App.Placement(App.Vector(0, 0, -21.1232), App.Rotation())
sketch7.addGeometry(Part.LineSegment(App.Vector(-15, 0, 0), App.Vector(3, 0, 0)), False)
sketch7.addGeometry(Part.LineSegment(App.Vector(3, 0, 0), App.Vector(3, -5, 0)), False)
sketch7.addGeometry(Part.LineSegment(App.Vector(3, -5, 0), App.Vector(-15, -5, 0)), False)
sketch7.addGeometry(Part.LineSegment(App.Vector(-15, -5, 0), App.Vector(-15, 0, 0)), False)
sketch7.addConstraint(Sketcher.Constraint("Coincident", 0, 2, 1, 1))
sketch7.addConstraint(Sketcher.Constraint("Coincident", 1, 2, 2, 1))
sketch7.addConstraint(Sketcher.Constraint("Coincident", 2, 2, 3, 1))
sketch7.addConstraint(Sketcher.Constraint("Coincident", 3, 2, 0, 1))
sketch7.addConstraint(Sketcher.Constraint("Horizontal", 0))
sketch7.addConstraint(Sketcher.Constraint("Vertical", 1))
sketch7.addConstraint(Sketcher.Constraint("Horizontal", 2))
sketch7.addConstraint(Sketcher.Constraint("Vertical", 3))
sketch7.addConstraint(Sketcher.Constraint("PointOnObject", 0, 2, -1))
sketch7.addConstraint(Sketcher.Constraint("DistanceX", 0, 1, 0, 2, 18.0))
sketch7.addConstraint(Sketcher.Constraint("DistanceY", 1, 2, 1, 1, 5.0))
sketch7.addConstraint(Sketcher.Constraint("DistanceX", -1, 1, 0, 2, 2.8627))
pocket4 = body.newObject("PartDesign::Pocket", "Pocket003")
pocket4.Profile = sketch7
pocket4.Length = 12
pocket4.Reversed = True

sketch8 = body.newObject("Sketcher::SketchObject", "Sketch007")
sketch8.AttachmentSupport = (doc.getObject("XZ_Plane"), [""])
sketch8.MapMode = "FlatFace"
sketch8.AttachmentOffset = App.Placement(App.Vector(0, 0, 28.8768), App.Rotation())
sketch8.addGeometry(Part.LineSegment(App.Vector(-15, -5, 0), App.Vector(3, -5, 0)), False)
sketch8.addGeometry(Part.LineSegment(App.Vector(3, -5, 0), App.Vector(3, 0, 0)), False)
sketch8.addGeometry(Part.LineSegment(App.Vector(3, 0, 0), App.Vector(-15, 0, 0)), False)
sketch8.addGeometry(Part.LineSegment(App.Vector(-15, 0, 0), App.Vector(-15, -5, 0)), False)
sketch8.addConstraint(Sketcher.Constraint("Coincident", 0, 2, 1, 1))
sketch8.addConstraint(Sketcher.Constraint("Coincident", 1, 2, 2, 1))
sketch8.addConstraint(Sketcher.Constraint("Coincident", 2, 2, 3, 1))
sketch8.addConstraint(Sketcher.Constraint("Coincident", 3, 2, 0, 1))
sketch8.addConstraint(Sketcher.Constraint("Horizontal", 0))
sketch8.addConstraint(Sketcher.Constraint("Vertical", 1))
sketch8.addConstraint(Sketcher.Constraint("Horizontal", 2))
sketch8.addConstraint(Sketcher.Constraint("Vertical", 3))
sketch8.addConstraint(Sketcher.Constraint("PointOnObject", 1, 2, -1))
sketch8.addConstraint(Sketcher.Constraint("DistanceX", 0, 1, 0, 2, 18.0))
sketch8.addConstraint(Sketcher.Constraint("DistanceY", 1, 1, 1, 2, 5.0))
sketch8.addConstraint(Sketcher.Constraint("DistanceX", -1, 1, 0, 2, 2.8627))
pocket5 = body.newObject("PartDesign::Pocket", "Pocket004")
pocket5.Profile = sketch8
pocket5.Length = 12

sketch9 = body.newObject("Sketcher::SketchObject", "Sketch008")
sketch9.AttachmentSupport = (doc.getObject("XY_Plane"), [""])
sketch9.MapMode = "FlatFace"
sketch9.addGeometry(Part.LineSegment(App.Vector(-24, 43, 0), App.Vector(16, 43, 0)), False)
sketch9.addGeometry(Part.LineSegment(App.Vector(16, 43, 0), App.Vector(16, 28, 0)), False)
sketch9.addGeometry(Part.LineSegment(App.Vector(16, 28, 0), App.Vector(-24, 28, 0)), False)
sketch9.addGeometry(Part.LineSegment(App.Vector(-24, 28, 0), App.Vector(-24, 43, 0)), False)
sketch9.addConstraint(Sketcher.Constraint("Coincident", 0, 2, 1, 1))
sketch9.addConstraint(Sketcher.Constraint("Coincident", 1, 2, 2, 1))
sketch9.addConstraint(Sketcher.Constraint("Coincident", 2, 2, 3, 1))
sketch9.addConstraint(Sketcher.Constraint("Coincident", 3, 2, 0, 1))
sketch9.addConstraint(Sketcher.Constraint("Horizontal", 0))
sketch9.addConstraint(Sketcher.Constraint("Vertical", 1))
sketch9.addConstraint(Sketcher.Constraint("Horizontal", 2))
sketch9.addConstraint(Sketcher.Constraint("Vertical", 3))
sketch9.addConstraint(Sketcher.Constraint("DistanceX", 0, 1, 0, 2, 40.0))
sketch9.addConstraint(Sketcher.Constraint("DistanceY", 1, 2, 1, 1, 15.0))
sketch9.addConstraint(Sketcher.Constraint("DistanceX", -1, 1, 0, 2, 16.3627))
sketch9.addConstraint(Sketcher.Constraint("DistanceY", -1, 1, 0, 2, 42.6232))
pad3 = body.newObject("PartDesign::Pad", "Pad002")
pad3.Profile = sketch9
pad3.Length = 4.5
pad3.Reversed = True

sketch10 = body.newObject("Sketcher::SketchObject", "Sketch009")
sketch10.AttachmentSupport = (doc.getObject("XY_Plane"), [""])
sketch10.MapMode = "FlatFace"
sketch10.AttachmentOffset = App.Placement(App.Vector(0, 0, -4.5), App.Rotation())
sketch10.addGeometry(Part.LineSegment(App.Vector(-24, 28, 0), App.Vector(-24, 46, 0)), False)
sketch10.addGeometry(Part.LineSegment(App.Vector(-24, 46, 0), App.Vector(16, 46, 0)), False)
sketch10.addGeometry(Part.LineSegment(App.Vector(16, 46, 0), App.Vector(16, 28, 0)), False)
sketch10.addGeometry(Part.LineSegment(App.Vector(16, 28, 0), App.Vector(-24, 28, 0)), False)
sketch10.addConstraint(Sketcher.Constraint("Coincident", 0, 2, 1, 1))
sketch10.addConstraint(Sketcher.Constraint("Coincident", 1, 2, 2, 1))
sketch10.addConstraint(Sketcher.Constraint("Coincident", 2, 2, 3, 1))
sketch10.addConstraint(Sketcher.Constraint("Coincident", 3, 2, 0, 1))
sketch10.addConstraint(Sketcher.Constraint("Vertical", 0))
sketch10.addConstraint(Sketcher.Constraint("Horizontal", 1))
sketch10.addConstraint(Sketcher.Constraint("Vertical", 2))
sketch10.addConstraint(Sketcher.Constraint("Horizontal", 3))
sketch10.addConstraint(Sketcher.Constraint("DistanceX", 1, 1, 1, 2, 40.0))
sketch10.addConstraint(Sketcher.Constraint("DistanceY", 0, 1, 0, 2, 18.5))
sketch10.addConstraint(Sketcher.Constraint("DistanceX", 0, 2, -1, 1, 23.6373))
sketch10.addConstraint(Sketcher.Constraint("DistanceY", -1, 1, 0, 2, 46.1232))
pad4 = body.newObject("PartDesign::Pad", "Pad003")
pad4.Profile = sketch10
pad4.Length = 13
pad4.Reversed = True

sketch11 = body.newObject("Sketcher::SketchObject", "Sketch010")
sketch11.AttachmentSupport = (doc.getObject("XY_Plane"), [""])
sketch11.MapMode = "FlatFace"
sketch11.AttachmentOffset = App.Placement(App.Vector(0, 0, -17.5), App.Rotation())
sketch11.addGeometry(Part.LineSegment(App.Vector(16, 43, 0), App.Vector(16, 28, 0)), False)
sketch11.addGeometry(Part.LineSegment(App.Vector(16, 28, 0), App.Vector(-24, 28, 0)), False)
sketch11.addGeometry(Part.LineSegment(App.Vector(-24, 28, 0), App.Vector(-24, 43, 0)), False)
sketch11.addGeometry(Part.LineSegment(App.Vector(-24, 43, 0), App.Vector(16, 43, 0)), False)
sketch11.addConstraint(Sketcher.Constraint("Coincident", 0, 2, 1, 1))
sketch11.addConstraint(Sketcher.Constraint("Coincident", 1, 2, 2, 1))
sketch11.addConstraint(Sketcher.Constraint("Coincident", 2, 2, 3, 1))
sketch11.addConstraint(Sketcher.Constraint("Coincident", 3, 2, 0, 1))
sketch11.addConstraint(Sketcher.Constraint("Vertical", 0))
sketch11.addConstraint(Sketcher.Constraint("Horizontal", 1))
sketch11.addConstraint(Sketcher.Constraint("Vertical", 2))
sketch11.addConstraint(Sketcher.Constraint("Horizontal", 3))
sketch11.addConstraint(Sketcher.Constraint("DistanceX", 1, 2, 1, 1, 40.0))
sketch11.addConstraint(Sketcher.Constraint("DistanceY", 0, 2, 0, 1, 15.0))
sketch11.addConstraint(Sketcher.Constraint("DistanceX", -1, 1, 0, 2, 16.3627))
sketch11.addConstraint(Sketcher.Constraint("DistanceY", -1, 1, 0, 2, 27.6232))
pad5 = body.newObject("PartDesign::Pad", "Pad004")
pad5.Profile = sketch11
pad5.Length = 12
pad5.Reversed = True

sketch12 = body.newObject("Sketcher::SketchObject", "Sketch011")
sketch12.AttachmentSupport = (doc.getObject("XY_Plane"), [""])
sketch12.MapMode = "FlatFace"
sketch12.AttachmentOffset = App.Placement(App.Vector(0, 0, -29.5), App.Rotation())
sketch12.addGeometry(Part.Circle(App.Vector(-18.7, 35.1, 0), App.Vector(0, 0, 1), 3.2), False)
sketch12.addGeometry(Part.Circle(App.Vector(-8.7, 35.1, 0), App.Vector(0, 0, 1), 3.2), False)
sketch12.addGeometry(Part.Circle(App.Vector(1.3, 35.1, 0), App.Vector(0, 0, 1), 3.2), False)
sketch12.addGeometry(Part.Circle(App.Vector(11.3, 35.1, 0), App.Vector(0, 0, 1), 3.2), False)
sketch12.addConstraint(Sketcher.Constraint("Equal", 0, 1))
sketch12.addConstraint(Sketcher.Constraint("Equal", 1, 2))
sketch12.addConstraint(Sketcher.Constraint("Equal", 2, 3))
sketch12.addConstraint(Sketcher.Constraint("Horizontal", 0, 3, 1, 3))
sketch12.addConstraint(Sketcher.Constraint("Horizontal", 1, 3, 2, 3))
sketch12.addConstraint(Sketcher.Constraint("Horizontal", 2, 3, 3, 3))
sketch12.addConstraint(Sketcher.Constraint("Diameter", 0, 6.4))
sketch12.addConstraint(Sketcher.Constraint("DistanceX", 0, 3, 1, 3, 10.0))
sketch12.addConstraint(Sketcher.Constraint("DistanceX", 1, 3, 2, 3, 10.0))
sketch12.addConstraint(Sketcher.Constraint("DistanceX", 2, 3, 3, 3, 10.0))
sketch12.addConstraint(Sketcher.Constraint("DistanceX", 0, 3, -1, 1, 18.719))
sketch12.addConstraint(Sketcher.Constraint("DistanceY", -1, 1, 0, 3, 35.1232))
doc.recompute()
hole2 = body.newObject("PartDesign::Hole", "Hole001")
hole2.Profile = sketch12
hole2.ThreadType = "None"
hole2.Diameter = 6.4
hole2.DepthType = "Dimension"
hole2.Depth = 3.6
hole2.DrillPoint = "Flat"
hole2.Reversed = True

doc.recompute()
